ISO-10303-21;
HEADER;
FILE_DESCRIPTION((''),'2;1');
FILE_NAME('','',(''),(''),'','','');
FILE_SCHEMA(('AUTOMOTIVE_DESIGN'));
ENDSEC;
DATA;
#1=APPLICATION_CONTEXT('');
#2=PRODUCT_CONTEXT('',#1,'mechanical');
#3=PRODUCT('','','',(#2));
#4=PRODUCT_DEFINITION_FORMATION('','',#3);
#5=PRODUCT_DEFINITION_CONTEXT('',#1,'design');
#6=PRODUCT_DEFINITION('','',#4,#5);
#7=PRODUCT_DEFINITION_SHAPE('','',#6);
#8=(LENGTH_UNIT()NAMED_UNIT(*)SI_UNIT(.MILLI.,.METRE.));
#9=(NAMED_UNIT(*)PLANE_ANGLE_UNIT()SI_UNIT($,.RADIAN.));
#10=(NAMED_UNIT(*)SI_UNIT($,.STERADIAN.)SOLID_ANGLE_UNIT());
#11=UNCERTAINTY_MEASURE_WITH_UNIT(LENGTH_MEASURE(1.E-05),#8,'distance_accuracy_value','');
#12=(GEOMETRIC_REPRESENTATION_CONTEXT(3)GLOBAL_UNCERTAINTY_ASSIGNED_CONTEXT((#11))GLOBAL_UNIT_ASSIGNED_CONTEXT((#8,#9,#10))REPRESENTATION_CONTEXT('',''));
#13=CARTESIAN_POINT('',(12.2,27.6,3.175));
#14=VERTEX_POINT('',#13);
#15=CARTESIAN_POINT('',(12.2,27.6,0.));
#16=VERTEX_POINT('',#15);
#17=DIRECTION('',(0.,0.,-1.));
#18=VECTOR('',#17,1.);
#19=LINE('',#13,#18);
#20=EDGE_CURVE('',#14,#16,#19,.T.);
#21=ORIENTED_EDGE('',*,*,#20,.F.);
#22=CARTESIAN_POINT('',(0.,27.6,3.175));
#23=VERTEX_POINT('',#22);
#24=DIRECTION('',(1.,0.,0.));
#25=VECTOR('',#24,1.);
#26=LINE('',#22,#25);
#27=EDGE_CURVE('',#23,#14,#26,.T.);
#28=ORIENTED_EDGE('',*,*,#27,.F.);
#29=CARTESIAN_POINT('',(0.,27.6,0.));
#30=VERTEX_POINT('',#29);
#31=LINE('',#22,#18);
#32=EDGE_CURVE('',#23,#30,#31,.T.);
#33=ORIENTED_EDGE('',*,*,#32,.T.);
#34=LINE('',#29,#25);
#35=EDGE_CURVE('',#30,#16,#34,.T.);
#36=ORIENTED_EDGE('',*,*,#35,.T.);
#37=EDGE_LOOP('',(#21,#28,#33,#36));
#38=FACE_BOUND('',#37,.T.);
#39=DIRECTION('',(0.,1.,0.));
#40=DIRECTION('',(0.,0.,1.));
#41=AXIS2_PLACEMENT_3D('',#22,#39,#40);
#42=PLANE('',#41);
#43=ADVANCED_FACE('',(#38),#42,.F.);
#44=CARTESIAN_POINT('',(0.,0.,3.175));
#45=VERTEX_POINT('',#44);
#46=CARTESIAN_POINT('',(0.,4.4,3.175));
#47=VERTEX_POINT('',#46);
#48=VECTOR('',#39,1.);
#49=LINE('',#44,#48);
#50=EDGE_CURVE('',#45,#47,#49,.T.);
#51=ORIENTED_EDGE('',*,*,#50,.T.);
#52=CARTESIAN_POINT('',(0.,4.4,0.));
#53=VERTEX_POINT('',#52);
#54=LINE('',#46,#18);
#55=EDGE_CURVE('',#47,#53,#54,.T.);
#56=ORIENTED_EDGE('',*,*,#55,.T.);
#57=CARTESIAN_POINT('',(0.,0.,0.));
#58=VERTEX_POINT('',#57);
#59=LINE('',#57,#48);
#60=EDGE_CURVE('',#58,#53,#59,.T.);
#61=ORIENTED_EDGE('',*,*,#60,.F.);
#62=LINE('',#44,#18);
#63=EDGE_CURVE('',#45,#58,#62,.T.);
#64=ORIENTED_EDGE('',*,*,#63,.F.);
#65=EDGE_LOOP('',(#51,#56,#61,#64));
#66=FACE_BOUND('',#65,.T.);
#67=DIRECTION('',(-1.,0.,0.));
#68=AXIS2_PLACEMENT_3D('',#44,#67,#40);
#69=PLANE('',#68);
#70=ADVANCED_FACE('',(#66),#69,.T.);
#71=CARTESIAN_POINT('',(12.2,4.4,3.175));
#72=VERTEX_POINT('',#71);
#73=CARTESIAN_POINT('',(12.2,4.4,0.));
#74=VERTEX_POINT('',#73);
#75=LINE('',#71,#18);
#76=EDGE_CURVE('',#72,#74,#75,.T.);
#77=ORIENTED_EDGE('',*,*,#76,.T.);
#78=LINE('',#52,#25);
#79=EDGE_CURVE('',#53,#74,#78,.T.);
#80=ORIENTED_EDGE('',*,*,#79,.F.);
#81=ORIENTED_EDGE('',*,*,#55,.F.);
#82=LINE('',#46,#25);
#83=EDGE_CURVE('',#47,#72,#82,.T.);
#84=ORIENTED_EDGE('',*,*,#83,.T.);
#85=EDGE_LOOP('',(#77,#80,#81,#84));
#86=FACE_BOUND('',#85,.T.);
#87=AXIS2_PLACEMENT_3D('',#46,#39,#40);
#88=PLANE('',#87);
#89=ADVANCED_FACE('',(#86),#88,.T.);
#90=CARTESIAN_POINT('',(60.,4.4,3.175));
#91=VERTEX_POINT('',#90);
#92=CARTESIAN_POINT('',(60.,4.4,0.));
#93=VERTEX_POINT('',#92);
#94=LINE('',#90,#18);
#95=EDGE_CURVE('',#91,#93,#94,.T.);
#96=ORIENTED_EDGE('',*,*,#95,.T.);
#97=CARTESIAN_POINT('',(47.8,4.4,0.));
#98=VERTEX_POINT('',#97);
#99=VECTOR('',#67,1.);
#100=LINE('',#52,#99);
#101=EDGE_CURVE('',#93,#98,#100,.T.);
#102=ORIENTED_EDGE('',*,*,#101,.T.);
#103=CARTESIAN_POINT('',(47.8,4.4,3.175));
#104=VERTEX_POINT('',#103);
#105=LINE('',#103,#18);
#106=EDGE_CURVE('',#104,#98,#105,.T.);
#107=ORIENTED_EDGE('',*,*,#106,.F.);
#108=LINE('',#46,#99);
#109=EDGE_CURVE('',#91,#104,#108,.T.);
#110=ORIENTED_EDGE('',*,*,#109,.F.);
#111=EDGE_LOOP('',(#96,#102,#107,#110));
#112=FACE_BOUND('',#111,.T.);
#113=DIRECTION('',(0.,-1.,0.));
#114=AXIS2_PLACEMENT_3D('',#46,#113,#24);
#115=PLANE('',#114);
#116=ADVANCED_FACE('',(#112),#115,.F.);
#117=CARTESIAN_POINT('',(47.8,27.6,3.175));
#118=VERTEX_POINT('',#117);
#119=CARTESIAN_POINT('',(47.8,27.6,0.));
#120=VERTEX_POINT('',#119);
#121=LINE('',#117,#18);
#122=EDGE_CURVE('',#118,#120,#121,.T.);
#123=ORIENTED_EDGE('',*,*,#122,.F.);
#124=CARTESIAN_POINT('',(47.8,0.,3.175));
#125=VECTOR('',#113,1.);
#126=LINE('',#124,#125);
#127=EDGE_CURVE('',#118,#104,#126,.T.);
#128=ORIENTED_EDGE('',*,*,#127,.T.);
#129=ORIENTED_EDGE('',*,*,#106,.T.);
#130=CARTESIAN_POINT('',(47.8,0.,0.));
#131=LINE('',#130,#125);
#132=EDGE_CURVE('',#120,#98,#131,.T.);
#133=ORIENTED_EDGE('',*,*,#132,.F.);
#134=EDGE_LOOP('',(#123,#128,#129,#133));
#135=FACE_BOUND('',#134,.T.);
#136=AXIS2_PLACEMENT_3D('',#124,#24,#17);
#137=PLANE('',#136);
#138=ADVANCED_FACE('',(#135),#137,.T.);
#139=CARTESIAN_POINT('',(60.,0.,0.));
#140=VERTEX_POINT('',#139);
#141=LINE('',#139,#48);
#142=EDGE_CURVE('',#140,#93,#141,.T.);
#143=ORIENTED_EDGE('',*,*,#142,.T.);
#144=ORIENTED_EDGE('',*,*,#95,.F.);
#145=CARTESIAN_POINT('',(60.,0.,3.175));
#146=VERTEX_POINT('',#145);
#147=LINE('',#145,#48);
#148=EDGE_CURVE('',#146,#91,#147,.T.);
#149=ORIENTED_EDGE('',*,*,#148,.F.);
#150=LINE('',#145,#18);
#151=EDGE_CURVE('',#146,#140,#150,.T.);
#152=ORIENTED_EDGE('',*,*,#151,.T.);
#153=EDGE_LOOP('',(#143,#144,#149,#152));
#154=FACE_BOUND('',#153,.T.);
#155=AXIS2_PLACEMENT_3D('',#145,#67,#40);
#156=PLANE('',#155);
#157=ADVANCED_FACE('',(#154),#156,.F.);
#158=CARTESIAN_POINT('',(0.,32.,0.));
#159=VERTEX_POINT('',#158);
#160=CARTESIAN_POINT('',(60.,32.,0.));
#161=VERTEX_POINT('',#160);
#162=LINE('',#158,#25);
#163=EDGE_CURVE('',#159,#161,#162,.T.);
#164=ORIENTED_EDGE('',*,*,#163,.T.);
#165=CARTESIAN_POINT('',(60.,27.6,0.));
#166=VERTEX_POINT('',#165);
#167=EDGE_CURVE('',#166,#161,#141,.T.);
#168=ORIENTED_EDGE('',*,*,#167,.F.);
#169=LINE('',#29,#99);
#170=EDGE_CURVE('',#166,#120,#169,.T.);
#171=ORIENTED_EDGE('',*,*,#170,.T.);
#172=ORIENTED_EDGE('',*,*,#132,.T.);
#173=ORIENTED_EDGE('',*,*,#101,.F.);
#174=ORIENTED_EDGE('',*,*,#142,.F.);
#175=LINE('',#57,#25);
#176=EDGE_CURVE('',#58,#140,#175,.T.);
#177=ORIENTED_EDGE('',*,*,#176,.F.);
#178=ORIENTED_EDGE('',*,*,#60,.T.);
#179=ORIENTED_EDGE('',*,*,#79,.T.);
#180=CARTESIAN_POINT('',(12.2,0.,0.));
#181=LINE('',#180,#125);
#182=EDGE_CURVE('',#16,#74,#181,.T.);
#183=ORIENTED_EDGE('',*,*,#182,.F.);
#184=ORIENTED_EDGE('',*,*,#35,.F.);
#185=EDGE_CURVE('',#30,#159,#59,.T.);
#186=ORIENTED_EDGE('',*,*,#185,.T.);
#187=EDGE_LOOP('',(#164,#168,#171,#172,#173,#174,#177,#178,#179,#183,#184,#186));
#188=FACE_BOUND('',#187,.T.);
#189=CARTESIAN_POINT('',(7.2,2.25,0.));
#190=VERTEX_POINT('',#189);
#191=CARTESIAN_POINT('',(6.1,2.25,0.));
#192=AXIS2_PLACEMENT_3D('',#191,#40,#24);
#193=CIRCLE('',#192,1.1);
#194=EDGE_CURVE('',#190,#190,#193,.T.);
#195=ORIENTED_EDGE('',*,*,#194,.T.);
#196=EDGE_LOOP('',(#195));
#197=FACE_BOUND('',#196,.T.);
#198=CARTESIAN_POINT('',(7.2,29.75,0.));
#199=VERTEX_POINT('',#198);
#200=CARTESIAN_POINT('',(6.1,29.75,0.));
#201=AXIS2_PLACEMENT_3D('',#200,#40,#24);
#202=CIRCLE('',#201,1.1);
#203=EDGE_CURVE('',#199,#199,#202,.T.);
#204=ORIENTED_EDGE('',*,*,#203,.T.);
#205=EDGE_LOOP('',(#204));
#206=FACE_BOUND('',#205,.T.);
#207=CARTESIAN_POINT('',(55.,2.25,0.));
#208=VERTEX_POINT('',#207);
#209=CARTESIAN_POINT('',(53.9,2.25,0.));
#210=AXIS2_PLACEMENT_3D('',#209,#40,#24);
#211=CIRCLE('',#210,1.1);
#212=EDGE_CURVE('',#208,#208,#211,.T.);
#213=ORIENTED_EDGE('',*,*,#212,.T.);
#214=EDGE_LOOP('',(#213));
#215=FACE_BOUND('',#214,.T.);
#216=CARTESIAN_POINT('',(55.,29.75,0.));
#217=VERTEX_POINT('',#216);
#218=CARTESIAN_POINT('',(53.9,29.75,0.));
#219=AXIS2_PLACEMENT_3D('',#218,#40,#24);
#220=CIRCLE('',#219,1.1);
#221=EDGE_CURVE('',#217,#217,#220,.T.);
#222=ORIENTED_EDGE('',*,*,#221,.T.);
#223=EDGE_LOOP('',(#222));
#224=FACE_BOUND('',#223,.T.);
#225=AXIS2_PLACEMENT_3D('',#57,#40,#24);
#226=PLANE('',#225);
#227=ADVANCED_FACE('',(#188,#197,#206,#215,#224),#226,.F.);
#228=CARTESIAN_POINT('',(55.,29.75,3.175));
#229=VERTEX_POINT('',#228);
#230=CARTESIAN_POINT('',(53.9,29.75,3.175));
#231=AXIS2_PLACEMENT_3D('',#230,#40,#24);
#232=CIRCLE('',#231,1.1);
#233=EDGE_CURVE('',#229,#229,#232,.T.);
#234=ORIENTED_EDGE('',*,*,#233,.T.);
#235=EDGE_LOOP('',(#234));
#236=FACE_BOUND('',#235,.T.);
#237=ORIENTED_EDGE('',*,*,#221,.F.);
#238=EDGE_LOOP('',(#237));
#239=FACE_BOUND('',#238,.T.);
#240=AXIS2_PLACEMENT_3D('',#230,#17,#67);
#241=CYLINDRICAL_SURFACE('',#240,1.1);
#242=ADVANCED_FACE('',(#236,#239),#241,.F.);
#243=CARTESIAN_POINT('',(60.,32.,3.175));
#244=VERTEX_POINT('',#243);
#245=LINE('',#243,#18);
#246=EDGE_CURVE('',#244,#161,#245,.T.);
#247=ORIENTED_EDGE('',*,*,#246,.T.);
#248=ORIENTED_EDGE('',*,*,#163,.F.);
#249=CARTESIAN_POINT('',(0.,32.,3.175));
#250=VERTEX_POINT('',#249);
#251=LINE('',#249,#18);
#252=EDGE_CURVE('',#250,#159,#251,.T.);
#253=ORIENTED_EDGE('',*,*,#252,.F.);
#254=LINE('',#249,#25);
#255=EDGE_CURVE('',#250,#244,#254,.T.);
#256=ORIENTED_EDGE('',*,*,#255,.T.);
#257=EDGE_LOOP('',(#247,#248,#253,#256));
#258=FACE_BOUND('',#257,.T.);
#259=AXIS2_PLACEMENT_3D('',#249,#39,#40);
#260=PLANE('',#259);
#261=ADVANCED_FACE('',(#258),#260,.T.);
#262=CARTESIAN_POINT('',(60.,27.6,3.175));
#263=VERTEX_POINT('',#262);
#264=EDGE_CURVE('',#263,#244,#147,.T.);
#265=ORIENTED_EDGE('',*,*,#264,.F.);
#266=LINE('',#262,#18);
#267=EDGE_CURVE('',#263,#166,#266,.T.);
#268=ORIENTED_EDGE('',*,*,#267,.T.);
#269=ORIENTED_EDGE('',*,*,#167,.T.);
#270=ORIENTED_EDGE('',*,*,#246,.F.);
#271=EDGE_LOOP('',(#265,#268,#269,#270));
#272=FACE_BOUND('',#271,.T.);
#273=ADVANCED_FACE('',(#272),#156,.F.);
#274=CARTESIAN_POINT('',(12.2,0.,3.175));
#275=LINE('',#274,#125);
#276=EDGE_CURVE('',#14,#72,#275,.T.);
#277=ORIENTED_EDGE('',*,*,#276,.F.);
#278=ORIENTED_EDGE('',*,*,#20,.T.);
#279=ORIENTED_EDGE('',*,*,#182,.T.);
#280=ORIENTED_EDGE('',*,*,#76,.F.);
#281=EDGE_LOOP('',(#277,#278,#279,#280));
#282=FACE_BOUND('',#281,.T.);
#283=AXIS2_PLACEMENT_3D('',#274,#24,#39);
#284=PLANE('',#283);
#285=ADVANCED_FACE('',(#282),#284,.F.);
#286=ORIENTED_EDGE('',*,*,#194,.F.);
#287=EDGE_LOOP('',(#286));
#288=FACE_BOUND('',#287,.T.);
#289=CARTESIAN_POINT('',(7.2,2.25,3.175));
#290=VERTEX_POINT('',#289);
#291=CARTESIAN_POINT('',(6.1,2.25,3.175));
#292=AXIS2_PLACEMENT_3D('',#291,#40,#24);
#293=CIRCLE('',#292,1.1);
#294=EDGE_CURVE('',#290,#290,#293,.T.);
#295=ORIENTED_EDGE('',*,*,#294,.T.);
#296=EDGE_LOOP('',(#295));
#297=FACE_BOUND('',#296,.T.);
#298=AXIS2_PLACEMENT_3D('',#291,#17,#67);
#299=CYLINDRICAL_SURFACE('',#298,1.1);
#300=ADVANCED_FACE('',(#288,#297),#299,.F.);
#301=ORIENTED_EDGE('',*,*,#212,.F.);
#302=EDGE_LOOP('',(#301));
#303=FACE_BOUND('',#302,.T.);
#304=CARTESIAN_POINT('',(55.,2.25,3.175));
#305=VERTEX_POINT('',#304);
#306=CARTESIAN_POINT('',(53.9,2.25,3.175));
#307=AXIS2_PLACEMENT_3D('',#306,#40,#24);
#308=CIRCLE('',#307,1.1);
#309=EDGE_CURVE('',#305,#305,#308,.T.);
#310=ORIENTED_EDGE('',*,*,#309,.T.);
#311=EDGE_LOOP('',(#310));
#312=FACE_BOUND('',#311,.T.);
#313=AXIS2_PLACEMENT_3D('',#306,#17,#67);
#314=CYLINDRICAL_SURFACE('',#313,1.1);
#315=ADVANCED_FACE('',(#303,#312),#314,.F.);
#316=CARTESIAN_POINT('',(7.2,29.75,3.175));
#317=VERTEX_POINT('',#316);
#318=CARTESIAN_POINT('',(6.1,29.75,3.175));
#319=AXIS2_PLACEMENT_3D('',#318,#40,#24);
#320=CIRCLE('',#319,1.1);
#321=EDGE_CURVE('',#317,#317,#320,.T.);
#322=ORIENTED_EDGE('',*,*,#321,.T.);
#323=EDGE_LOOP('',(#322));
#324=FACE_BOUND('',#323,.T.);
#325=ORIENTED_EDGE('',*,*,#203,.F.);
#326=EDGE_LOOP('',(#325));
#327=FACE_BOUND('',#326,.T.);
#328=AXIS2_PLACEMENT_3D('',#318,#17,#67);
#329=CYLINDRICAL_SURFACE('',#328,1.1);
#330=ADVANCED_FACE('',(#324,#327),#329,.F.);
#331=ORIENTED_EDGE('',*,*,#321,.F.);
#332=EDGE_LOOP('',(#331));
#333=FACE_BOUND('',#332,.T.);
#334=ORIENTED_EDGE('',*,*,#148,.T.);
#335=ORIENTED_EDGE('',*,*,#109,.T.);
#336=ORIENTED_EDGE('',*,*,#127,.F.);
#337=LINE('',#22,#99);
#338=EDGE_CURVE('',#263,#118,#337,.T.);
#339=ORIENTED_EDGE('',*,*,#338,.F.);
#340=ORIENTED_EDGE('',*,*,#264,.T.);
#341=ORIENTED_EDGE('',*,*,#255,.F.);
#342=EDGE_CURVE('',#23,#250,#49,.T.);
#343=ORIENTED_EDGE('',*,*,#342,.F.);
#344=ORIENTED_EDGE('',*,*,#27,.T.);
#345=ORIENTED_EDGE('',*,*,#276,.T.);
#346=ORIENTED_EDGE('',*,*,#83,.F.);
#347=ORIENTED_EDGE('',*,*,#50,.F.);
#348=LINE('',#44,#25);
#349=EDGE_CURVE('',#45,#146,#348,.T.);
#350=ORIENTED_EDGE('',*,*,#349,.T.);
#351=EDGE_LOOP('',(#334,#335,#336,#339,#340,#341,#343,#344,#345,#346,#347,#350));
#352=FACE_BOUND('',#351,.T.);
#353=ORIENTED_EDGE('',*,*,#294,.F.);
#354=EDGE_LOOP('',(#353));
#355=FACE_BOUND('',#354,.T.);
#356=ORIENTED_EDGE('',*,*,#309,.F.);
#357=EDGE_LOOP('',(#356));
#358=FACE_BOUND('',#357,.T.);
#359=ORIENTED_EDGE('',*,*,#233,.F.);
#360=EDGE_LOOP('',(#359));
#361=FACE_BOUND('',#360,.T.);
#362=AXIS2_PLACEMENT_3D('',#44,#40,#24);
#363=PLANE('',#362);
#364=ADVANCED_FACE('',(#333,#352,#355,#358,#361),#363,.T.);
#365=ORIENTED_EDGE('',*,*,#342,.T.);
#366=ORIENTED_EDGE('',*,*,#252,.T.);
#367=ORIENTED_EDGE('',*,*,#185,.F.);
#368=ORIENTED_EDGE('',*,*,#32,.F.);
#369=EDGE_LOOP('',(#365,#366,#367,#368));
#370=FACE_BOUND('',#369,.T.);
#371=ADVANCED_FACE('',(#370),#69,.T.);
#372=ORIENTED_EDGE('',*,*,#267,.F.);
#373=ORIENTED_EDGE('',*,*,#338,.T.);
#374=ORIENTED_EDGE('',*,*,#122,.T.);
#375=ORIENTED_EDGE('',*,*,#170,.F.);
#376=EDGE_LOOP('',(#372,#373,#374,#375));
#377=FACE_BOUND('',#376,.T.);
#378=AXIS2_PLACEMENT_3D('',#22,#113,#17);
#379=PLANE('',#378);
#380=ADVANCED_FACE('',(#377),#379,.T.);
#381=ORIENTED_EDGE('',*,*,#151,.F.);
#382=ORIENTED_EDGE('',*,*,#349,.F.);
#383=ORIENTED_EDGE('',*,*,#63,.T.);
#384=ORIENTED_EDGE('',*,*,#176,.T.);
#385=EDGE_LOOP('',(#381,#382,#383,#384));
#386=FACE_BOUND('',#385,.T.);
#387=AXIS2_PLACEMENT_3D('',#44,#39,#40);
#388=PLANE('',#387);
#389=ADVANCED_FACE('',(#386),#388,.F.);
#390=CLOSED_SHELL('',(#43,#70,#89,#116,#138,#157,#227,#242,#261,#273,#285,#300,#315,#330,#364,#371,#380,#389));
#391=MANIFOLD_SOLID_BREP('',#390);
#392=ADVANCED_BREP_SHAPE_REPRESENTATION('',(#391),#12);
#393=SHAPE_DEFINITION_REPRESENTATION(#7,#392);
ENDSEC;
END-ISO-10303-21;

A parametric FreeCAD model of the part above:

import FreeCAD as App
import Part
import Sketcher
from FreeCAD import Vector


def add_polygon(sketch, points):
    """Adds a closed chain of lines whose ends are joined by coincident constraints."""
    first, n = sketch.GeometryCount, len(points)
    for a, b in zip(points, points[1:] + points[:1]):
        sketch.addGeometry(Part.LineSegment(App.Vector(*a, 0), App.Vector(*b, 0)), False)
    for i in range(n):
        sketch.addConstraint(Sketcher.Constraint("Coincident", first + i, 2, first + (i + 1) % n, 1))

doc = App.newDocument("Part")
body = doc.addObject("PartDesign::Body", "Body")

# Sketch on XY plane
sketch1 = doc.addObject("Sketcher::SketchObject", "Sketch")
body.addObject(sketch1)
sketch1.AttachmentSupport = (doc.XY_Plane, [""])
sketch1.MapMode = "FlatFace"
add_polygon(sketch1, [(0, 4.4), (0, 0), (60, 0), (60, 4.4), (47.8, 4.4), (47.8, 27.6), (60, 27.6), (60, 32), (0, 32), (0, 27.6), (12.2, 27.6), (12.2, 4.4)])  # lines 0-11
sketch1.addGeometry(Part.Circle(Vector(6.1, 2.25, 0), Vector(0, 0, 1), 1.1), False)  # 12
sketch1.addGeometry(Part.Circle(Vector(53.9, 2.25, 0), Vector(0, 0, 1), 1.1), False)  # 13
sketch1.addGeometry(Part.Circle(Vector(6.1, 29.75, 0), Vector(0, 0, 1), 1.1), False)  # 14
sketch1.addGeometry(Part.Circle(Vector(53.9, 29.75, 0), Vector(0, 0, 1), 1.1), False)  # 15
sketch1.addConstraint([
    Sketcher.Constraint("Vertical", 0),
    Sketcher.Constraint("Horizontal", 1),
    Sketcher.Constraint("Vertical", 2),
    Sketcher.Constraint("Horizontal", 3),
    Sketcher.Constraint("Vertical", 4),
    Sketcher.Constraint("Horizontal", 5),
    Sketcher.Constraint("Vertical", 6),
    Sketcher.Constraint("Horizontal", 7),
    Sketcher.Constraint("Vertical", 8),
    Sketcher.Constraint("Horizontal", 9),
    Sketcher.Constraint("Vertical", 10),
    Sketcher.Constraint("Horizontal", 11),
    Sketcher.Constraint("Coincident", 0, 2, -1, 1),
    Sketcher.Constraint("Equal", 12, 13),
    Sketcher.Constraint("Equal", 13, 14),
    Sketcher.Constraint("Equal", 14, 15),
    Sketcher.Constraint("PointOnObject", 7, 2, -2),
    Sketcher.Constraint("Horizontal", 12, 3, 13, 3),
    Sketcher.Constraint("Horizontal", 14, 3, 15, 3),
    Sketcher.Constraint("Horizontal", 5, 2, 8, 2),
    Sketcher.Constraint("Horizontal", 3, 2, 10, 2),
    Sketcher.Constraint("Vertical", 12, 3, 14, 3),
    Sketcher.Constraint("Vertical", 13, 3, 15, 3),
    Sketcher.Constraint("Vertical", 2, 2, 5, 2),
    Sketcher.Constraint("Equal", 5, 9),
    Sketcher.Constraint("Equal", 2, 6),
    Sketcher.Constraint("Diameter", 12, 2.2),
    Sketcher.Constraint("DistanceX", 1, 1, 1, 2, 60.0),
    Sketcher.Constraint("DistanceX", 3, 2, 3, 1, 12.2),
    Sketcher.Constraint("DistanceY", 0, 2, 0, 1, 4.4),
    Sketcher.Constraint("DistanceY", 4, 1, 4, 2, 23.2),
    Sketcher.Constraint("DistanceX", -1, 1, 12, 3, 6.1),
    Sketcher.Constraint("DistanceX", -1, 1, 13, 3, 53.9),
    Sketcher.Constraint("DistanceY", 12, 3, 14, 3, 27.5),
    Sketcher.Constraint("DistanceY", -1, 1, 12, 3, 2.25),
])
pad1 = doc.addObject("PartDesign::Pad", "Pad")
body.addObject(pad1)
pad1.Profile = sketch1
pad1.Length = 3.175

doc.recompute()
